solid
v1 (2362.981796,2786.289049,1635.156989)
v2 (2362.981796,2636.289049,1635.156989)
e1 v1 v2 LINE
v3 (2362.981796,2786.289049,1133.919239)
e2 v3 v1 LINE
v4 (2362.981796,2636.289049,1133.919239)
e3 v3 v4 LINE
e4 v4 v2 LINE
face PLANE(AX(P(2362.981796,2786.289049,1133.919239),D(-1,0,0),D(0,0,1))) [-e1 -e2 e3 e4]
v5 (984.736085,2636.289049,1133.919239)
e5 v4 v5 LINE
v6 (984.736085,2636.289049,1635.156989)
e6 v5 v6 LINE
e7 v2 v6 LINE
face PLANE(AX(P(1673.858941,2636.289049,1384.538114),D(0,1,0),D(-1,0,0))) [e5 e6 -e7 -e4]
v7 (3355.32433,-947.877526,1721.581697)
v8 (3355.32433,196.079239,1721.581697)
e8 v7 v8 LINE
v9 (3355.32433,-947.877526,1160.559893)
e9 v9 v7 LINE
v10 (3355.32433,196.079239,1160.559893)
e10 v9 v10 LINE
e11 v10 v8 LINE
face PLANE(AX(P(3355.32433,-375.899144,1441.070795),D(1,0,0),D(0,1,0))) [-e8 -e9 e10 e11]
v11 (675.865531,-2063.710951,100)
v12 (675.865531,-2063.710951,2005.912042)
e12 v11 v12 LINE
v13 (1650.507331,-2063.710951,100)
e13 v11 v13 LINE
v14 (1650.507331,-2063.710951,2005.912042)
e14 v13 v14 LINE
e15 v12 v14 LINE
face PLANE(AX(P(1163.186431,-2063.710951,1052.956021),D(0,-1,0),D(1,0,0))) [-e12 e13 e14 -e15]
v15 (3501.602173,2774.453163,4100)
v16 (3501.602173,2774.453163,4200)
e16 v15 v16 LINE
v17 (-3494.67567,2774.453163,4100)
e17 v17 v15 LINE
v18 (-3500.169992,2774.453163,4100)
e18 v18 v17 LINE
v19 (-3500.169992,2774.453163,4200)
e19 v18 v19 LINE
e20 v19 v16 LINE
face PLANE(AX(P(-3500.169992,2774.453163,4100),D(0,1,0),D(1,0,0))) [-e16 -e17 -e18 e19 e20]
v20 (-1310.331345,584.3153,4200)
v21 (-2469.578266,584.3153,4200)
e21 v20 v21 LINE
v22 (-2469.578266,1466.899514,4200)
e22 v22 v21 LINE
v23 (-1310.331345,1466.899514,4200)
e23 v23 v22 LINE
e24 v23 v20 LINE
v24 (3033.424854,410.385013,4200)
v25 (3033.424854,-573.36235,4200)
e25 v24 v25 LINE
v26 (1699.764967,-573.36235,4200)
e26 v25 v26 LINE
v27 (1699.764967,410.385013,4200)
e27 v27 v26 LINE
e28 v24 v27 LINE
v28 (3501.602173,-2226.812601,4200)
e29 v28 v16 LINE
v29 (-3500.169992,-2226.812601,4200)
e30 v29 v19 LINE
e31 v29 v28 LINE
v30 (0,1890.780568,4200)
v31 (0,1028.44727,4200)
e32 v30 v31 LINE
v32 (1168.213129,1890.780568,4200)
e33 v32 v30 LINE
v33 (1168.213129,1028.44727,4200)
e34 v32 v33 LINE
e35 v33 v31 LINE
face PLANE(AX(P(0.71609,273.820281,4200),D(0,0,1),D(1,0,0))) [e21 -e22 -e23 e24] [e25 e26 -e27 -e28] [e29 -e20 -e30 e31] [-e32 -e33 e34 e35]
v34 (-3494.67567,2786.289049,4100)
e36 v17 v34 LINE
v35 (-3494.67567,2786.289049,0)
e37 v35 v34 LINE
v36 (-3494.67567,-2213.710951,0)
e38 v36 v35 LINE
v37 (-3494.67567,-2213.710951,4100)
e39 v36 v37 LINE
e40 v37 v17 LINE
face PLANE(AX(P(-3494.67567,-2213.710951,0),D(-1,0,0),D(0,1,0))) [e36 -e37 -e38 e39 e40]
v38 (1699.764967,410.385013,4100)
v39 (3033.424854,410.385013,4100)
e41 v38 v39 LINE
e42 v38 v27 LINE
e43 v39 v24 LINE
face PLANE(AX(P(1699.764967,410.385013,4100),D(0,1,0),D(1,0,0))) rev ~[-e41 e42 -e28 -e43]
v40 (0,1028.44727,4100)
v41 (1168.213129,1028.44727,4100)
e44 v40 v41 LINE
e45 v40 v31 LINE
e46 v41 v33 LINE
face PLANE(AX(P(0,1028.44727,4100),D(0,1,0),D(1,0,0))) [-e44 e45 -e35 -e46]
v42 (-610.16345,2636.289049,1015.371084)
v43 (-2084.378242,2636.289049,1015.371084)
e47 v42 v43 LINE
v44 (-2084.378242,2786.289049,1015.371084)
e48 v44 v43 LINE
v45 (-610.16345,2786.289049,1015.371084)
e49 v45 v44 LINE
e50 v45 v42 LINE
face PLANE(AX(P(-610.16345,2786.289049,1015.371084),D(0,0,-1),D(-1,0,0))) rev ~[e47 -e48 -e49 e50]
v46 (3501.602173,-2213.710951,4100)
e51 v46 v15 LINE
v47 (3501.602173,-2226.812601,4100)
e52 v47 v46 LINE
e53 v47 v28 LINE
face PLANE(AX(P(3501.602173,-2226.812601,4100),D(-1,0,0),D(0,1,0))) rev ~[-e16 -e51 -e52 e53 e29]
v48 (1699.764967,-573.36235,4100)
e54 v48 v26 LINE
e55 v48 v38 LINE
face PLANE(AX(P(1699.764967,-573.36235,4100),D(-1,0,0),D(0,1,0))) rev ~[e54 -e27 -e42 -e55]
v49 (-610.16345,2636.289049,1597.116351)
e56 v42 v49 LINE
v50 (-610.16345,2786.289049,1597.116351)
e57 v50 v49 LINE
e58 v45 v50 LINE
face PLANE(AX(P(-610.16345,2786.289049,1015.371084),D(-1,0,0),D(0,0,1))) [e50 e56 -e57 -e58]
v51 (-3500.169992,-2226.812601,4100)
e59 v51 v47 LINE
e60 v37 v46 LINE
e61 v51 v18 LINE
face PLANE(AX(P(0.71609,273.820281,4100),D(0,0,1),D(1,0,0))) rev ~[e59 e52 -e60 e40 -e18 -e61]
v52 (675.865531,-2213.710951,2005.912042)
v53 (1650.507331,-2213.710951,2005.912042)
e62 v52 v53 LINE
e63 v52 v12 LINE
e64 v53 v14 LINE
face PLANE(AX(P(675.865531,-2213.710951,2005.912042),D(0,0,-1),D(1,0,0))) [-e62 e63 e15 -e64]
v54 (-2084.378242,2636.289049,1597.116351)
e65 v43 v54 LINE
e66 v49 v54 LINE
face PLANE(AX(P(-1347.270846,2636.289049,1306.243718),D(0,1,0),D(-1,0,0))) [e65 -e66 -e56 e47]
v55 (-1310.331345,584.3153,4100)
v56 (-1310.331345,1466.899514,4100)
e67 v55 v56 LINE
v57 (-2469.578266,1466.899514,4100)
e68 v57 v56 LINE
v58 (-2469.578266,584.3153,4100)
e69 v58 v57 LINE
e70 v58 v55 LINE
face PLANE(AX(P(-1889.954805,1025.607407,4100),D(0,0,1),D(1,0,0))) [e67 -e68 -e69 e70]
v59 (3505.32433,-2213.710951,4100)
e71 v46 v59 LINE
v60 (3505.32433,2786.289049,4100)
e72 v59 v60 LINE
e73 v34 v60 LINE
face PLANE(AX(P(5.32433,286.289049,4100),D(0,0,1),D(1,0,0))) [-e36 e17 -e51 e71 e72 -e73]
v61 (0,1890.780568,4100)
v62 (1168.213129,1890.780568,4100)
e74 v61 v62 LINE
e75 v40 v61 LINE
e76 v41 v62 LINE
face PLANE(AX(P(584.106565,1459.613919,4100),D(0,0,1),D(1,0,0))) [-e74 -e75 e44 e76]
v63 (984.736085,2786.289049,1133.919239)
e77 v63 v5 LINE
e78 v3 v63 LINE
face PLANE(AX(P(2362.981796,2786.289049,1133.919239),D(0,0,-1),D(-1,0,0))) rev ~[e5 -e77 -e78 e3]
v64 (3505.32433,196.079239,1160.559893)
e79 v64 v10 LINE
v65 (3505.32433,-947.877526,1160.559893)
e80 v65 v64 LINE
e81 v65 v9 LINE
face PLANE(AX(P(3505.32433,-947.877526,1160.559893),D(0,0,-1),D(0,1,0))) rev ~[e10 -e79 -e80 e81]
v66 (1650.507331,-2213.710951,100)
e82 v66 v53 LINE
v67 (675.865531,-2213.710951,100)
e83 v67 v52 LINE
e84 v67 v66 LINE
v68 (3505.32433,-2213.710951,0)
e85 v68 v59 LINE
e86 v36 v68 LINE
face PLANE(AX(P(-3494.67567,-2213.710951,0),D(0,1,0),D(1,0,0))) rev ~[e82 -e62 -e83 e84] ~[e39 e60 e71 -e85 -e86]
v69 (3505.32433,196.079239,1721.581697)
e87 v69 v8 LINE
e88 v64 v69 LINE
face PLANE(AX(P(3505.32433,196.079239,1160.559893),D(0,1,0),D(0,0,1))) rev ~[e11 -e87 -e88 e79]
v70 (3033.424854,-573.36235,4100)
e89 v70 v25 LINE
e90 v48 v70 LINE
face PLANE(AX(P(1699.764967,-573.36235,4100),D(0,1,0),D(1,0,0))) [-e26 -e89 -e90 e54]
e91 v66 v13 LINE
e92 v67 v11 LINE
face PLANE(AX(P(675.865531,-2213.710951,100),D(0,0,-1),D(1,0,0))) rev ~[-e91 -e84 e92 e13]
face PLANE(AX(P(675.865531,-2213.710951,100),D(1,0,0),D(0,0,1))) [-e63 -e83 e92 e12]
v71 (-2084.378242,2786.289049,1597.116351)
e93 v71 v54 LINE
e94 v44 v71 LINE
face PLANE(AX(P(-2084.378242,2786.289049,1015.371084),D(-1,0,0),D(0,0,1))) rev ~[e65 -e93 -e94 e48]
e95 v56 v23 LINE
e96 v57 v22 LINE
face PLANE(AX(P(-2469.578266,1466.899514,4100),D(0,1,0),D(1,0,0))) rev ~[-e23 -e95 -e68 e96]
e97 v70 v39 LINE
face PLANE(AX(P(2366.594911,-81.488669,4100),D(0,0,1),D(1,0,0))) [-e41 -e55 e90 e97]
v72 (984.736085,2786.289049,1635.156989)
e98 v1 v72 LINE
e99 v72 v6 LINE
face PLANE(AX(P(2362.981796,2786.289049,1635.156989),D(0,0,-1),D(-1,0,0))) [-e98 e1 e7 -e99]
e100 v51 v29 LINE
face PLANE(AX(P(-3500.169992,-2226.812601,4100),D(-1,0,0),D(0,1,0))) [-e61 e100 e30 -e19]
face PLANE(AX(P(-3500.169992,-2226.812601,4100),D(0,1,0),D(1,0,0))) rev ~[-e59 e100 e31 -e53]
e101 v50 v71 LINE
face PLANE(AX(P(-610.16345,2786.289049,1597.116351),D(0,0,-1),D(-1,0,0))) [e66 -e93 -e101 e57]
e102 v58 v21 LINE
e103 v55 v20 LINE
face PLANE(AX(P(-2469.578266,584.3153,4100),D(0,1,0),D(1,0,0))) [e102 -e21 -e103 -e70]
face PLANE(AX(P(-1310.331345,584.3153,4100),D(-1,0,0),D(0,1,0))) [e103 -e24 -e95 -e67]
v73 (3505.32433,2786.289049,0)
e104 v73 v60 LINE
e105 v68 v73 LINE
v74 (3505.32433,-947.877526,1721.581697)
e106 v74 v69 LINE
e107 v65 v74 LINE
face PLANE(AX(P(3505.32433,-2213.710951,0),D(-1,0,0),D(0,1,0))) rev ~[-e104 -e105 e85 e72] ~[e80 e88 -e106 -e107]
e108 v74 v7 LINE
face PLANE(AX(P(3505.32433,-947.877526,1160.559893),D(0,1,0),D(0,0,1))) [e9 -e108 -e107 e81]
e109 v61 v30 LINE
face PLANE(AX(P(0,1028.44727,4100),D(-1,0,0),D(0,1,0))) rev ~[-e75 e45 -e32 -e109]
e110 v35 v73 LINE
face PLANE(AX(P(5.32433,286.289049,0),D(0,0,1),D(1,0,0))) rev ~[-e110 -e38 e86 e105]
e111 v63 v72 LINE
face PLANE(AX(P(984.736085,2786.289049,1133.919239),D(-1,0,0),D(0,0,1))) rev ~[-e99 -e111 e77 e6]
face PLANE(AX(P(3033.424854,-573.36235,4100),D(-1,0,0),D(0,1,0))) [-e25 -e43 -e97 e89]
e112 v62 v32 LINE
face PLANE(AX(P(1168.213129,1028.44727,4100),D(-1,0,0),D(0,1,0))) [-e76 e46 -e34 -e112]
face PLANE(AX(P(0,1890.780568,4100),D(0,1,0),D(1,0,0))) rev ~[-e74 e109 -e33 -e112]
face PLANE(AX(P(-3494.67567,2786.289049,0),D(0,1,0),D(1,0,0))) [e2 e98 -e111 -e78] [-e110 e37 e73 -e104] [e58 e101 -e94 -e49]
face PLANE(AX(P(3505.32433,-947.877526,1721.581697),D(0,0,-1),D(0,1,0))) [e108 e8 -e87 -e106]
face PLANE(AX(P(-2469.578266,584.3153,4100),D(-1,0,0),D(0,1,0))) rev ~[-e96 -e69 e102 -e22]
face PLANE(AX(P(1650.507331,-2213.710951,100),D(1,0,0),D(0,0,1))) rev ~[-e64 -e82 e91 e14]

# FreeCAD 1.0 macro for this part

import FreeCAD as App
import Part
import Sketcher

V = App.Vector

doc = App.newDocument("Part")
body = doc.addObject("PartDesign::Body", "Body")

# Sketch on XY plane
sketch1 = doc.addObject("Sketcher::SketchObject", "Sketch")
body.addObject(sketch1)
sketch1.AttachmentSupport = (doc.XY_Plane, [""])
sketch1.MapMode = "FlatFace"
sketch1.addGeometry([
    Part.LineSegment(V(-3495, 2786, 0), V(-3495, -2214, 0)),
    Part.LineSegment(V(-3495, -2214, 0), V(3505, -2214, 0)),
    Part.LineSegment(V(3505, -2214, 0), V(3505, 2786, 0)),
    Part.LineSegment(V(3505, 2786, 0), V(-3495, 2786, 0)),
], False)
sketch1.addConstraint([
    Sketcher.Constraint("Coincident", 0, 2, 1, 1),
    Sketcher.Constraint("Coincident", 1, 2, 2, 1),
    Sketcher.Constraint("Coincident", 2, 2, 3, 1),
    Sketcher.Constraint("Coincident", 3, 2, 0, 1),
    Sketcher.Constraint("Vertical", 0),
    Sketcher.Constraint("Horizontal", 1),
    Sketcher.Constraint("Vertical", 2),
    Sketcher.Constraint("Horizontal", 3),
    Sketcher.Constraint("DistanceX", 1, 1, 1, 2, 7000.0),
    Sketcher.Constraint("DistanceY", 0, 2, 0, 1, 5000.0),
    Sketcher.Constraint("DistanceX", 0, 2, -1, 1, 3494.67567),
    Sketcher.Constraint("DistanceY", 0, 2, -1, 1, 2213.710951),
])
pad1 = doc.addObject("PartDesign::Pad", "Pad")
body.addObject(pad1)
pad1.Profile = sketch1
pad1.Length = 4100

# Sketch on XY plane
sketch2 = doc.addObject("Sketcher::SketchObject", "Sketch001")
body.addObject(sketch2)
sketch2.AttachmentSupport = (doc.XY_Plane, [""])
sketch2.MapMode = "FlatFace"
sketch2.AttachmentOffset = App.Placement(V(0, 0, 4100), App.Rotation())
sketch2.addGeometry([
    Part.LineSegment(V(-3500, 2774, 0), V(-3500, -2227, 0)),
    Part.LineSegment(V(-3500, -2227, 0), V(3502, -2227, 0)),
    Part.LineSegment(V(3502, -2227, 0), V(3502, 2774, 0)),
    Part.LineSegment(V(3502, 2774, 0), V(-3500, 2774, 0)),
], False)
sketch2.addConstraint([
    Sketcher.Constraint("Coincident", 0, 2, 1, 1),
    Sketcher.Constraint("Coincident", 1, 2, 2, 1),
    Sketcher.Constraint("Coincident", 2, 2, 3, 1),
    Sketcher.Constraint("Coincident", 3, 2, 0, 1),
    Sketcher.Constraint("Vertical", 0),
    Sketcher.Constraint("Horizontal", 1),
    Sketcher.Constraint("Vertical", 2),
    Sketcher.Constraint("Horizontal", 3),
    Sketcher.Constraint("DistanceY", 0, 2, -1, 1, 2226.812601),
    Sketcher.Constraint("DistanceX", 1, 1, 1, 2, 7001.772165),
    Sketcher.Constraint("DistanceY", 0, 2, 0, 1, 5001.265764),
    Sketcher.Constraint("DistanceX", 0, 2, -1, 1, 3500.169992),
])
pad2 = doc.addObject("PartDesign::Pad", "Pad001")
body.addObject(pad2)
pad2.Profile = sketch2
pad2.Length = 100

# Sketch on XY plane
sketch3 = doc.addObject("Sketcher::SketchObject", "Sketch002")
body.addObject(sketch3)
sketch3.AttachmentSupport = (doc.XY_Plane, [""])
sketch3.MapMode = "FlatFace"
sketch3.AttachmentOffset = App.Placement(V(0, 0, 4100), App.Rotation())
sketch3.addGeometry([
    Part.LineSegment(V(-2470, 1467, 0), V(-2470, 584, 0)),  # 0
    Part.LineSegment(V(-2470, 584, 0), V(-1310, 584, 0)),  # 1
    Part.LineSegment(V(-1310, 584, 0), V(-1310, 1467, 0)),  # 2
    Part.LineSegment(V(-1310, 1467, 0), V(-2470, 1467, 0)),  # 3
    Part.LineSegment(V(0, 1891, 0), V(0, 1028, 0)),  # 4
    Part.LineSegment(V(0, 1028, 0), V(1168, 1028, 0)),  # 5
    Part.LineSegment(V(1168, 1028, 0), V(1168, 1891, 0)),  # 6
    Part.LineSegment(V(1168, 1891, 0), V(0, 1891, 0)),  # 7
    Part.LineSegment(V(1700, 410, 0), V(1700, -573, 0)),  # 8
    Part.LineSegment(V(1700, -573, 0), V(3033, -573, 0)),  # 9
    Part.LineSegment(V(3033, -573, 0), V(3033, 410, 0)),  # 10
    Part.LineSegment(V(3033, 410, 0), V(1700, 410, 0)),  # 11
], False)
sketch3.addConstraint([
    Sketcher.Constraint("Coincident", 0, 2, 1, 1),
    Sketcher.Constraint("Coincident", 1, 2, 2, 1),
    Sketcher.Constraint("Coincident", 2, 2, 3, 1),
    Sketcher.Constraint("Coincident", 3, 2, 0, 1),
    Sketcher.Constraint("Coincident", 4, 2, 5, 1),
    Sketcher.Constraint("Coincident", 5, 2, 6, 1),
    Sketcher.Constraint("Coincident", 6, 2, 7, 1),
    Sketcher.Constraint("Coincident", 7, 2, 4, 1),
    Sketcher.Constraint("Coincident", 8, 2, 9, 1),
    Sketcher.Constraint("Coincident", 9, 2, 10, 1),
    Sketcher.Constraint("Coincident", 10, 2, 11, 1),
    Sketcher.Constraint("Coincident", 11, 2, 8, 1),
    Sketcher.Constraint("Vertical", 0),
    Sketcher.Constraint("Horizontal", 1),
    Sketcher.Constraint("Vertical", 2),
    Sketcher.Constraint("Horizontal", 3),
    Sketcher.Constraint("Vertical", 4),
    Sketcher.Constraint("Horizontal", 5),
    Sketcher.Constraint("Vertical", 6),
    Sketcher.Constraint("Horizontal", 7),
    Sketcher.Constraint("Vertical", 8),
    Sketcher.Constraint("Horizontal", 9),
    Sketcher.Constraint("Vertical", 10),
    Sketcher.Constraint("Horizontal", 11),
    Sketcher.Constraint("PointOnObject", 4, 2, -2),
    Sketcher.Constraint("DistanceX", 1, 1, 1, 2, 1159.246922),
    Sketcher.Constraint("DistanceX", 5, 1, 5, 2, 1168.213129),
    Sketcher.Constraint("DistanceY", -1, 1, 0, 2, 584.3153),
    Sketcher.Constraint("DistanceX", 9, 1, 9, 2, 1333.659887),
    Sketcher.Constraint("DistanceY", 0, 2, 0, 1, 882.584214),
    Sketcher.Constraint("DistanceY", 4, 2, 4, 1, 862.333298),
    Sketcher.Constraint("DistanceY", 8, 2, 8, 1, 983.747363),
    Sketcher.Constraint("DistanceY", -1, 1, 4, 2, 1028.44727),
    Sketcher.Constraint("DistanceY", 8, 2, -1, 1, 573.36235),
    Sketcher.Constraint("DistanceX", 1, 2, 8, 2, 3010.096312),
    Sketcher.Constraint("DistanceX", 0, 2, -1, 1, 2469.578266),
])
pocket1 = doc.addObject("PartDesign::Pocket", "Pocket")
body.addObject(pocket1)
pocket1.Profile = sketch3
pocket1.Length = 150
pocket1.Reversed = True

# Sketch on YZ plane
sketch4 = doc.addObject("Sketcher::SketchObject", "Sketch003")
body.addObject(sketch4)
sketch4.AttachmentSupport = (doc.YZ_Plane, [""])
sketch4.MapMode = "FlatFace"
sketch4.AttachmentOffset = App.Placement(V(0, 0, 3505.32433), App.Rotation())
sketch4.addGeometry([
    Part.LineSegment(V(-948, 1722, 0), V(-948, 1161, 0)),
    Part.LineSegment(V(-948, 1161, 0), V(196, 1161, 0)),
    Part.LineSegment(V(196, 1161, 0), V(196, 1722, 0)),
    Part.LineSegment(V(196, 1722, 0), V(-948, 1722, 0)),
], False)
sketch4.addConstraint([
    Sketcher.Constraint("Coincident", 0, 2, 1, 1),
    Sketcher.Constraint("Coincident", 1, 2, 2, 1),
    Sketcher.Constraint("Coincident", 2, 2, 3, 1),
    Sketcher.Constraint("Coincident", 3, 2, 0, 1),
    Sketcher.Constraint("Vertical", 0),
    Sketcher.Constraint("Horizontal", 1),
    Sketcher.Constraint("Vertical", 2),
    Sketcher.Constraint("Horizontal", 3),
    Sketcher.Constraint("DistanceX", 1, 1, 1, 2, 1143.956766),
    Sketcher.Constraint("DistanceY", 0, 2, 0, 1, 561.021805),
    Sketcher.Constraint("DistanceX", -1, 1, 1, 2, 196.079239),
    Sketcher.Constraint("DistanceY", -1, 1, 0, 2, 1160.559893),
])
pocket2 = doc.addObject("PartDesign::Pocket", "Pocket001")
body.addObject(pocket2)
pocket2.Profile = sketch4
pocket2.Length = 150

# Sketch on XZ plane
sketch5 = doc.addObject("Sketcher::SketchObject", "Sketch004")
body.addObject(sketch5)
sketch5.AttachmentSupport = (doc.XZ_Plane, [""])
sketch5.MapMode = "FlatFace"
sketch5.AttachmentOffset = App.Placement(V(0, 0, -2786.289049), App.Rotation())
sketch5.addGeometry([
    Part.LineSegment(V(2363, 1635, 0), V(2363, 1134, 0)),  # 0
    Part.LineSegment(V(2363, 1134, 0), V(985, 1134, 0)),  # 1
    Part.LineSegment(V(985, 1134, 0), V(985, 1635, 0)),  # 2
    Part.LineSegment(V(985, 1635, 0), V(2363, 1635, 0)),  # 3
    Part.LineSegment(V(-610, 1597, 0), V(-610, 1015, 0)),  # 4
    Part.LineSegment(V(-610, 1015, 0), V(-2084, 1015, 0)),  # 5
    Part.LineSegment(V(-2084, 1015, 0), V(-2084, 1597, 0)),  # 6
    Part.LineSegment(V(-2084, 1597, 0), V(-610, 1597, 0)),  # 7
], False)
sketch5.addConstraint([
    Sketcher.Constraint("Coincident", 0, 2, 1, 1),
    Sketcher.Constraint("Coincident", 1, 2, 2, 1),
    Sketcher.Constraint("Coincident", 2, 2, 3, 1),
    Sketcher.Constraint("Coincident", 3, 2, 0, 1),
    Sketcher.Constraint("Coincident", 4, 2, 5, 1),
    Sketcher.Constraint("Coincident", 5, 2, 6, 1),
    Sketcher.Constraint("Coincident", 6, 2, 7, 1),
    Sketcher.Constraint("Coincident", 7, 2, 4, 1),
    Sketcher.Constraint("Vertical", 0),
    Sketcher.Constraint("Horizontal", 1),
    Sketcher.Constraint("Vertical", 2),
    Sketcher.Constraint("Horizontal", 3),
    Sketcher.Constraint("Vertical", 4),
    Sketcher.Constraint("Horizontal", 5),
    Sketcher.Constraint("Vertical", 6),
    Sketcher.Constraint("Horizontal", 7),
    Sketcher.Constraint("DistanceX", 1, 2, 1, 1, 1378.245711),
    Sketcher.Constraint("DistanceY", 0, 2, 0, 1, 501.23775),
    Sketcher.Constraint("DistanceX", 5, 2, 5, 1, 1474.214792),
    Sketcher.Constraint("DistanceY", 4, 2, 4, 1, 581.745267),
    Sketcher.Constraint("DistanceY", -1, 1, 0, 2, 1133.919239),
    Sketcher.Constraint("DistanceX", 4, 2, -1, 1, 610.16345),
    Sketcher.Constraint("DistanceY", -1, 1, 6, 2, 1597.116351),
    Sketcher.Constraint("DistanceX", 5, 2, 0, 2, 4447.360039),
])
pocket3 = doc.addObject("PartDesign::Pocket", "Pocket002")
body.addObject(pocket3)
pocket3.Profile = sketch5
pocket3.Length = 150
pocket3.Reversed = True

# Sketch on XZ plane
sketch6 = doc.addObject("Sketcher::SketchObject", "Sketch005")
body.addObject(sketch6)
sketch6.AttachmentSupport = (doc.XZ_Plane, [""])
sketch6.MapMode = "FlatFace"
sketch6.AttachmentOffset = App.Placement(V(0, 0, 2213.710951), App.Rotation())
sketch6.addGeometry([
    Part.LineSegment(V(676, 2006, 0), V(676, 100, 0)),
    Part.LineSegment(V(676, 100, 0), V(1651, 100, 0)),
    Part.LineSegment(V(1651, 100, 0), V(1651, 2006, 0)),
    Part.LineSegment(V(1651, 2006, 0), V(676, 2006, 0)),
], False)
sketch6.addConstraint([
    Sketcher.Constraint("Coincident", 0, 2, 1, 1),
    Sketcher.Constraint("Coincident", 1, 2, 2, 1),
    Sketcher.Constraint("Coincident", 2, 2, 3, 1),
    Sketcher.Constraint("Coincident", 3, 2, 0, 1),
    Sketcher.Constraint("Vertical", 0),
    Sketcher.Constraint("Horizontal", 1),
    Sketcher.Constraint("Vertical", 2),
    Sketcher.Constraint("Horizontal", 3),
    Sketcher.Constraint("DistanceY", -1, 1, 0, 2, 100.0),
    Sketcher.Constraint("DistanceX", 1, 1, 1, 2, 974.6418),
    Sketcher.Constraint("DistanceY", 0, 2, 0, 1, 1905.912042),
    Sketcher.Constraint("DistanceX", -1, 1, 0, 2, 675.865531),
])
pocket4 = doc.addObject("PartDesign::Pocket", "Pocket003")
body.addObject(pocket4)
pocket4.Profile = sketch6
pocket4.Length = 150

doc.recompute()
